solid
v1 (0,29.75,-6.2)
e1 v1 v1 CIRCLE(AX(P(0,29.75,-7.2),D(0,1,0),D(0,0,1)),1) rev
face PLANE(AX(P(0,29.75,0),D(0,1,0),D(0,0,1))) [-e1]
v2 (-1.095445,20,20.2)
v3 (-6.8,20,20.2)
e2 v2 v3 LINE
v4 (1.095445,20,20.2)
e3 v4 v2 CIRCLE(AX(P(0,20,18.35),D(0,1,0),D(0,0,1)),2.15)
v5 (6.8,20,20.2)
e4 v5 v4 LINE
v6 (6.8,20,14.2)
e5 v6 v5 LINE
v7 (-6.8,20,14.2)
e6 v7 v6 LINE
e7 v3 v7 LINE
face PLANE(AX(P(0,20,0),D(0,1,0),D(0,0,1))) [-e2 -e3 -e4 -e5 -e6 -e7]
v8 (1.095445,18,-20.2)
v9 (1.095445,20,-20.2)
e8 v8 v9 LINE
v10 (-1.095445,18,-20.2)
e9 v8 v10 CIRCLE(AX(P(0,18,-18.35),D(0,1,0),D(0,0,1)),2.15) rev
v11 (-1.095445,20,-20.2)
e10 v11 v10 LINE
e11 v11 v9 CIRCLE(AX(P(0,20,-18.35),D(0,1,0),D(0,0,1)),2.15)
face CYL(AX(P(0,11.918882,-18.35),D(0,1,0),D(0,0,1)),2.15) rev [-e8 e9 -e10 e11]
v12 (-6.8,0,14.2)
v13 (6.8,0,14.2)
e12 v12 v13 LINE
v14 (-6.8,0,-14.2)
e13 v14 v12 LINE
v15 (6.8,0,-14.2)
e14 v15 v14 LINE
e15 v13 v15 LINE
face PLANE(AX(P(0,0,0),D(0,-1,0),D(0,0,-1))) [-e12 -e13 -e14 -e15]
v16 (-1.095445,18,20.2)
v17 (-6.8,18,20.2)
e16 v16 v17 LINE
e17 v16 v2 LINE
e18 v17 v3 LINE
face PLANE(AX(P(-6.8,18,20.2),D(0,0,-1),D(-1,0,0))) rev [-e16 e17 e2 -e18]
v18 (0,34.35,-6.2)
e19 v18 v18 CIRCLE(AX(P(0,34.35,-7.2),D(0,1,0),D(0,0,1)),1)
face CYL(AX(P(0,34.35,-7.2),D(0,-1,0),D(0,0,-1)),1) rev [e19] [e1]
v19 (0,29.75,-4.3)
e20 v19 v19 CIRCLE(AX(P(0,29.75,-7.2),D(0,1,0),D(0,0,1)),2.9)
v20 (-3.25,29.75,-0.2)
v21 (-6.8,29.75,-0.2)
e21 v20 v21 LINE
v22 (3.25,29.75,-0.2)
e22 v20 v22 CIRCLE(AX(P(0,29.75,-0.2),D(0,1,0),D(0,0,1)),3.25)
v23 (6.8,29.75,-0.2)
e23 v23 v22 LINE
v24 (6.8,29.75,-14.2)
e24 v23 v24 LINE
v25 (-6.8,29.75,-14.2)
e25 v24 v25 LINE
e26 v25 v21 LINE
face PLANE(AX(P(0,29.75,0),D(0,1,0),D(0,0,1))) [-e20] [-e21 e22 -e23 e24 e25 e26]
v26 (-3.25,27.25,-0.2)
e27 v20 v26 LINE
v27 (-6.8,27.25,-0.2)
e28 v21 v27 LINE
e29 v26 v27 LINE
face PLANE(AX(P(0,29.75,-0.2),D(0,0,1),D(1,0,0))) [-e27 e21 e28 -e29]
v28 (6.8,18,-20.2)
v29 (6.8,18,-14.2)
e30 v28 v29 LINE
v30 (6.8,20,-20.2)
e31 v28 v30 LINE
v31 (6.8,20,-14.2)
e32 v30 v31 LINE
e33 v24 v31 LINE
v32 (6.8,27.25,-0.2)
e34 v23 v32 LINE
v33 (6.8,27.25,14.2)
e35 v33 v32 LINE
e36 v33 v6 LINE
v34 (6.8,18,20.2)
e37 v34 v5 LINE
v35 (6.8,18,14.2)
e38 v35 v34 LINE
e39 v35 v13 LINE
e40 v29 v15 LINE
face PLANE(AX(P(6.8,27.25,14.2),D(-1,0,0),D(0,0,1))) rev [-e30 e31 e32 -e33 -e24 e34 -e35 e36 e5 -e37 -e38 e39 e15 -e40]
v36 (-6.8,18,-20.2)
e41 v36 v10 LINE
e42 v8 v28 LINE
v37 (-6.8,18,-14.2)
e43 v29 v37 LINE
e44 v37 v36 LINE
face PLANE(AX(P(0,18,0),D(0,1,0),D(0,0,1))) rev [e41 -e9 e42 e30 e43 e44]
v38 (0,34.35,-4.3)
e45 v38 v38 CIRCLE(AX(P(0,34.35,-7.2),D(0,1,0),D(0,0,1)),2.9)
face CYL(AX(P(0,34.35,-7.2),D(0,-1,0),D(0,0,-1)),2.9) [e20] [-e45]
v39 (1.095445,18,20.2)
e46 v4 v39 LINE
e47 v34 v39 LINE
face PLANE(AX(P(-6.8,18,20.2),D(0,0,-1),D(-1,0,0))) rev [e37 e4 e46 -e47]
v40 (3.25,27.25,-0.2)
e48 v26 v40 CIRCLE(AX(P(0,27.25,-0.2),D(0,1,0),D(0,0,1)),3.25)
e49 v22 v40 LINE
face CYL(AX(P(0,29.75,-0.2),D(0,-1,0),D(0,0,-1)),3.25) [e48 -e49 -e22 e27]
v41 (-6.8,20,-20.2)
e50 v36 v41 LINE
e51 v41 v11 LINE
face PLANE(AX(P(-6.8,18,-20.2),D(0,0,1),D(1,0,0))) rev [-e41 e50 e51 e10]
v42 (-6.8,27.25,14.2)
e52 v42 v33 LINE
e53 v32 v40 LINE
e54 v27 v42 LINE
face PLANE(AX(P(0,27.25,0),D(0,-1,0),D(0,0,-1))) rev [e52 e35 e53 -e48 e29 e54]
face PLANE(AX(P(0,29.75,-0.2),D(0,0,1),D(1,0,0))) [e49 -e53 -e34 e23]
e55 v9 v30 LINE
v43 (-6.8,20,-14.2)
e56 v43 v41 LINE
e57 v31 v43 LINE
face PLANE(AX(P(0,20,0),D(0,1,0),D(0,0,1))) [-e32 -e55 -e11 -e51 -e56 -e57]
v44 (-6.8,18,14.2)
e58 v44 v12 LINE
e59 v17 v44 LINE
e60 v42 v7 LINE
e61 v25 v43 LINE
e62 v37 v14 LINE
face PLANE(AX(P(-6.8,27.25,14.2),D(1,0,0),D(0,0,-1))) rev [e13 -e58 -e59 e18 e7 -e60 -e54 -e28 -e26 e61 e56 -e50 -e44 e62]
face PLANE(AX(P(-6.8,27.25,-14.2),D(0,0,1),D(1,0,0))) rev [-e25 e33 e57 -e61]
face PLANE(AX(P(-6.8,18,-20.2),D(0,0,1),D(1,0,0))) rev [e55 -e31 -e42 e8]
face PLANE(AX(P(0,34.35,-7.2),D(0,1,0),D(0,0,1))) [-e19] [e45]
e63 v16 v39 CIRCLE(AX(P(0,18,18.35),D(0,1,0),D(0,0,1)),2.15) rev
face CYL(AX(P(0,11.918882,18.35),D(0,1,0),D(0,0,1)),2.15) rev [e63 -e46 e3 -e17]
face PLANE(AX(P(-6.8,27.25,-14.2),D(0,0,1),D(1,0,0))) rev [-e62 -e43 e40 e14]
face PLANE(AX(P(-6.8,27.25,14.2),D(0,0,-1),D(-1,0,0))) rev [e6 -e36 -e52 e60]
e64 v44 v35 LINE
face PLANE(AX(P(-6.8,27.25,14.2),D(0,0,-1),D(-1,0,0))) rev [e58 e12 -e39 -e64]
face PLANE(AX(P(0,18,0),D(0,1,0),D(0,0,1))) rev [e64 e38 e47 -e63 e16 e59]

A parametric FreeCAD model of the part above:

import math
import FreeCAD as App
import Part
import Sketcher

V = App.Vector
Q = App.Units.Quantity

doc = App.newDocument("Part")
body = doc.addObject("PartDesign::Body", "Body")

# Sketch on XZ plane
sketch1 = body.newObject("Sketcher::SketchObject", "Sketch")
sketch1.AttachmentSupport = (doc.getObject("XZ_Plane"), [""])
sketch1.MapMode = "FlatFace"
sketch1.addGeometry([
    Part.LineSegment(V(-7, -14, 0), V(-7, 14, 0)),
    Part.LineSegment(V(-7, 14, 0), V(7, 14, 0)),
    Part.LineSegment(V(7, 14, 0), V(7, -14, 0)),
    Part.LineSegment(V(7, -14, 0), V(-7, -14, 0)),
], False)
sketch1.addConstraint([
    Sketcher.Constraint("Coincident", 0, 2, 1, 1),
    Sketcher.Constraint("Coincident", 1, 2, 2, 1),
    Sketcher.Constraint("Coincident", 2, 2, 3, 1),
    Sketcher.Constraint("Coincident", 3, 2, 0, 1),
    Sketcher.Constraint("Vertical", 0),
    Sketcher.Constraint("Horizontal", 1),
    Sketcher.Constraint("Vertical", 2),
    Sketcher.Constraint("Horizontal", 3),
    Sketcher.Constraint("Symmetric", 0, 2, 2, 2, -1, 1),
    Sketcher.Constraint("DistanceX", 1, 1, 1, 2, Q("13.6 mm")),
    Sketcher.Constraint("DistanceY", 0, 1, 0, 2, Q("28.4 mm")),
])
pad1 = body.newObject("PartDesign::Pad", "Pad")
pad1.Profile = sketch1
pad1.Length = 27.25
pad1.Reversed = True

# Sketch on XZ plane
sketch2 = body.newObject("Sketcher::SketchObject", "Sketch001")
sketch2.AttachmentSupport = (doc.getObject("XZ_Plane"), [""])
sketch2.MapMode = "FlatFace"
sketch2.AttachmentOffset = App.Placement(V(0, 0, -27.25), App.Rotation())
sketch2.addGeometry([
    Part.ArcOfCircle(Part.Circle(V(0, -0.2, 0), V(0, 0, 1), 3.2), math.radians(0), math.radians(180)),  # 0
    Part.LineSegment(V(3.2, -0.2, 0), V(6.8, -0.2, 0)),  # 1
    Part.LineSegment(V(6.8, -0.2, 0), V(6.8, -14.2, 0)),  # 2
    Part.LineSegment(V(6.8, -14.2, 0), V(-6.8, -14.2, 0)),  # 3
    Part.LineSegment(V(-6.8, -14.2, 0), V(-6.8, -0.2, 0)),  # 4
    Part.LineSegment(V(-6.8, -0.2, 0), V(-3.2, -0.2, 0)),  # 5
], False)
sketch2.addConstraint([
    Sketcher.Constraint("Coincident", 0, 1, 1, 1),
    Sketcher.Constraint("Coincident", 1, 2, 2, 1),
    Sketcher.Constraint("Coincident", 2, 2, 3, 1),
    Sketcher.Constraint("Coincident", 3, 2, 4, 1),
    Sketcher.Constraint("Coincident", 4, 2, 5, 1),
    Sketcher.Constraint("Coincident", 5, 2, 0, 2),
    Sketcher.Constraint("Horizontal", 1),
    Sketcher.Constraint("Vertical", 2),
    Sketcher.Constraint("Horizontal", 3),
    Sketcher.Constraint("Vertical", 4),
    Sketcher.Constraint("Horizontal", 5),
    Sketcher.Constraint("Symmetric", 1, 2, 4, 2, -2),
    Sketcher.Constraint("PointOnObject", 0, 3, -2),
    Sketcher.Constraint("DistanceY", 2, 2, 2, 1, Q("14 mm")),
    Sketcher.Constraint("Radius", 0, Q("3.25 mm")),
    Sketcher.Constraint("DistanceX", 3, 2, 3, 1, Q("13.6 mm")),
    Sketcher.Constraint("DistanceY", 2, 2, 0, 3, Q("14 mm")),
    Sketcher.Constraint("DistanceY", 0, 3, -1, 1, Q("0.2 mm")),
])
pad2 = body.newObject("PartDesign::Pad", "Pad001")
pad2.Profile = sketch2
pad2.Length = 2.5
pad2.Reversed = True

# Sketch on XZ plane
sketch3 = body.newObject("Sketcher::SketchObject", "Sketch002")
sketch3.AttachmentSupport = (doc.getObject("XZ_Plane"), [""])
sketch3.MapMode = "FlatFace"
sketch3.AttachmentOffset = App.Placement(V(0, 0, -29.75), App.Rotation())
sketch3.addGeometry([
    Part.Circle(V(0, -7.2, 0), V(0, 0, 1), 2.9),
    Part.Circle(V(0, -7.2, 0), V(0, 0, 1), 1),
], False)
sketch3.addConstraint([
    Sketcher.Constraint("Coincident", 1, 3, 0, 3),
    Sketcher.Constraint("PointOnObject", 0, 3, -2),
    Sketcher.Constraint("Diameter", 1, Q("2 mm")),
    Sketcher.Constraint("Diameter", 0, Q("5.8 mm")),
    Sketcher.Constraint("DistanceY", 0, 3, -1, 1, Q("7.2 mm")),
])
pad3 = body.newObject("PartDesign::Pad", "Pad002")
pad3.Profile = sketch3
pad3.Length = 4.6
pad3.Reversed = True

# Sketch on XZ plane
sketch4 = body.newObject("Sketcher::SketchObject", "Sketch003")
sketch4.AttachmentSupport = (doc.getObject("XZ_Plane"), [""])
sketch4.MapMode = "FlatFace"
sketch4.AttachmentOffset = App.Placement(V(0, 0, -20), App.Rotation())
sketch4.addGeometry([
    Part.LineSegment(V(7, -20, 0), V(7, 20, 0)),
    Part.LineSegment(V(7, 20, 0), V(-7, 20, 0)),
    Part.LineSegment(V(-7, 20, 0), V(-7, -20, 0)),
    Part.LineSegment(V(-7, -20, 0), V(7, -20, 0)),
], False)
sketch4.addConstraint([
    Sketcher.Constraint("Coincident", 0, 2, 1, 1),
    Sketcher.Constraint("Coincident", 1, 2, 2, 1),
    Sketcher.Constraint("Coincident", 2, 2, 3, 1),
    Sketcher.Constraint("Coincident", 3, 2, 0, 1),
    Sketcher.Constraint("Vertical", 0),
    Sketcher.Constraint("Horizontal", 1),
    Sketcher.Constraint("Vertical", 2),
    Sketcher.Constraint("Horizontal", 3),
    Sketcher.Constraint("Symmetric", 0, 2, 2, 2, -1, 1),
    Sketcher.Constraint("DistanceX", 1, 2, 1, 1, Q("13.6 mm")),
    Sketcher.Constraint("DistanceY", 0, 1, 0, 2, Q("40.4 mm")),
])
pad4 = body.newObject("PartDesign::Pad", "Pad003")
pad4.Profile = sketch4
pad4.Length = 2

# Sketch on XZ plane
sketch5 = body.newObject("Sketcher::SketchObject", "Sketch004")
sketch5.AttachmentSupport = (doc.getObject("XZ_Plane"), [""])
sketch5.MapMode = "FlatFace"
sketch5.AttachmentOffset = App.Placement(V(0, 0, -20), App.Rotation())
sketch5.addGeometry(Part.Circle(V(0, 18.4, 0), V(0, 0, 1), 2.1), False)
sketch5.addConstraint([
    Sketcher.Constraint("PointOnObject", 0, 3, -2),
    Sketcher.Constraint("Diameter", 0, Q("4.3 mm")),
    Sketcher.Constraint("DistanceY", -1, 1, 0, 3, Q("18.35 mm")),
])
pocket1 = body.newObject("PartDesign::Pocket", "Pocket")
pocket1.Profile = sketch5
pocket1.Length = 2
pocket1.Reversed = True

# Sketch on XZ plane
sketch6 = body.newObject("Sketcher::SketchObject", "Sketch005")
sketch6.AttachmentSupport = (doc.getObject("XZ_Plane"), [""])
sketch6.MapMode = "FlatFace"
sketch6.AttachmentOffset = App.Placement(V(0, 0, -20), App.Rotation())
sketch6.addGeometry(Part.Circle(V(0, -18.4, 0), V(0, 0, 1), 2.1), False)
sketch6.addConstraint([
    Sketcher.Constraint("PointOnObject", 0, 3, -2),
    Sketcher.Constraint("Diameter", 0, Q("4.3 mm")),
    Sketcher.Constraint("DistanceY", 0, 3, -1, 1, Q("18.35 mm")),
])
pocket2 = body.newObject("PartDesign::Pocket", "Pocket001")
pocket2.Profile = sketch6
pocket2.Length = 2
pocket2.Reversed = True

doc.recompute()
